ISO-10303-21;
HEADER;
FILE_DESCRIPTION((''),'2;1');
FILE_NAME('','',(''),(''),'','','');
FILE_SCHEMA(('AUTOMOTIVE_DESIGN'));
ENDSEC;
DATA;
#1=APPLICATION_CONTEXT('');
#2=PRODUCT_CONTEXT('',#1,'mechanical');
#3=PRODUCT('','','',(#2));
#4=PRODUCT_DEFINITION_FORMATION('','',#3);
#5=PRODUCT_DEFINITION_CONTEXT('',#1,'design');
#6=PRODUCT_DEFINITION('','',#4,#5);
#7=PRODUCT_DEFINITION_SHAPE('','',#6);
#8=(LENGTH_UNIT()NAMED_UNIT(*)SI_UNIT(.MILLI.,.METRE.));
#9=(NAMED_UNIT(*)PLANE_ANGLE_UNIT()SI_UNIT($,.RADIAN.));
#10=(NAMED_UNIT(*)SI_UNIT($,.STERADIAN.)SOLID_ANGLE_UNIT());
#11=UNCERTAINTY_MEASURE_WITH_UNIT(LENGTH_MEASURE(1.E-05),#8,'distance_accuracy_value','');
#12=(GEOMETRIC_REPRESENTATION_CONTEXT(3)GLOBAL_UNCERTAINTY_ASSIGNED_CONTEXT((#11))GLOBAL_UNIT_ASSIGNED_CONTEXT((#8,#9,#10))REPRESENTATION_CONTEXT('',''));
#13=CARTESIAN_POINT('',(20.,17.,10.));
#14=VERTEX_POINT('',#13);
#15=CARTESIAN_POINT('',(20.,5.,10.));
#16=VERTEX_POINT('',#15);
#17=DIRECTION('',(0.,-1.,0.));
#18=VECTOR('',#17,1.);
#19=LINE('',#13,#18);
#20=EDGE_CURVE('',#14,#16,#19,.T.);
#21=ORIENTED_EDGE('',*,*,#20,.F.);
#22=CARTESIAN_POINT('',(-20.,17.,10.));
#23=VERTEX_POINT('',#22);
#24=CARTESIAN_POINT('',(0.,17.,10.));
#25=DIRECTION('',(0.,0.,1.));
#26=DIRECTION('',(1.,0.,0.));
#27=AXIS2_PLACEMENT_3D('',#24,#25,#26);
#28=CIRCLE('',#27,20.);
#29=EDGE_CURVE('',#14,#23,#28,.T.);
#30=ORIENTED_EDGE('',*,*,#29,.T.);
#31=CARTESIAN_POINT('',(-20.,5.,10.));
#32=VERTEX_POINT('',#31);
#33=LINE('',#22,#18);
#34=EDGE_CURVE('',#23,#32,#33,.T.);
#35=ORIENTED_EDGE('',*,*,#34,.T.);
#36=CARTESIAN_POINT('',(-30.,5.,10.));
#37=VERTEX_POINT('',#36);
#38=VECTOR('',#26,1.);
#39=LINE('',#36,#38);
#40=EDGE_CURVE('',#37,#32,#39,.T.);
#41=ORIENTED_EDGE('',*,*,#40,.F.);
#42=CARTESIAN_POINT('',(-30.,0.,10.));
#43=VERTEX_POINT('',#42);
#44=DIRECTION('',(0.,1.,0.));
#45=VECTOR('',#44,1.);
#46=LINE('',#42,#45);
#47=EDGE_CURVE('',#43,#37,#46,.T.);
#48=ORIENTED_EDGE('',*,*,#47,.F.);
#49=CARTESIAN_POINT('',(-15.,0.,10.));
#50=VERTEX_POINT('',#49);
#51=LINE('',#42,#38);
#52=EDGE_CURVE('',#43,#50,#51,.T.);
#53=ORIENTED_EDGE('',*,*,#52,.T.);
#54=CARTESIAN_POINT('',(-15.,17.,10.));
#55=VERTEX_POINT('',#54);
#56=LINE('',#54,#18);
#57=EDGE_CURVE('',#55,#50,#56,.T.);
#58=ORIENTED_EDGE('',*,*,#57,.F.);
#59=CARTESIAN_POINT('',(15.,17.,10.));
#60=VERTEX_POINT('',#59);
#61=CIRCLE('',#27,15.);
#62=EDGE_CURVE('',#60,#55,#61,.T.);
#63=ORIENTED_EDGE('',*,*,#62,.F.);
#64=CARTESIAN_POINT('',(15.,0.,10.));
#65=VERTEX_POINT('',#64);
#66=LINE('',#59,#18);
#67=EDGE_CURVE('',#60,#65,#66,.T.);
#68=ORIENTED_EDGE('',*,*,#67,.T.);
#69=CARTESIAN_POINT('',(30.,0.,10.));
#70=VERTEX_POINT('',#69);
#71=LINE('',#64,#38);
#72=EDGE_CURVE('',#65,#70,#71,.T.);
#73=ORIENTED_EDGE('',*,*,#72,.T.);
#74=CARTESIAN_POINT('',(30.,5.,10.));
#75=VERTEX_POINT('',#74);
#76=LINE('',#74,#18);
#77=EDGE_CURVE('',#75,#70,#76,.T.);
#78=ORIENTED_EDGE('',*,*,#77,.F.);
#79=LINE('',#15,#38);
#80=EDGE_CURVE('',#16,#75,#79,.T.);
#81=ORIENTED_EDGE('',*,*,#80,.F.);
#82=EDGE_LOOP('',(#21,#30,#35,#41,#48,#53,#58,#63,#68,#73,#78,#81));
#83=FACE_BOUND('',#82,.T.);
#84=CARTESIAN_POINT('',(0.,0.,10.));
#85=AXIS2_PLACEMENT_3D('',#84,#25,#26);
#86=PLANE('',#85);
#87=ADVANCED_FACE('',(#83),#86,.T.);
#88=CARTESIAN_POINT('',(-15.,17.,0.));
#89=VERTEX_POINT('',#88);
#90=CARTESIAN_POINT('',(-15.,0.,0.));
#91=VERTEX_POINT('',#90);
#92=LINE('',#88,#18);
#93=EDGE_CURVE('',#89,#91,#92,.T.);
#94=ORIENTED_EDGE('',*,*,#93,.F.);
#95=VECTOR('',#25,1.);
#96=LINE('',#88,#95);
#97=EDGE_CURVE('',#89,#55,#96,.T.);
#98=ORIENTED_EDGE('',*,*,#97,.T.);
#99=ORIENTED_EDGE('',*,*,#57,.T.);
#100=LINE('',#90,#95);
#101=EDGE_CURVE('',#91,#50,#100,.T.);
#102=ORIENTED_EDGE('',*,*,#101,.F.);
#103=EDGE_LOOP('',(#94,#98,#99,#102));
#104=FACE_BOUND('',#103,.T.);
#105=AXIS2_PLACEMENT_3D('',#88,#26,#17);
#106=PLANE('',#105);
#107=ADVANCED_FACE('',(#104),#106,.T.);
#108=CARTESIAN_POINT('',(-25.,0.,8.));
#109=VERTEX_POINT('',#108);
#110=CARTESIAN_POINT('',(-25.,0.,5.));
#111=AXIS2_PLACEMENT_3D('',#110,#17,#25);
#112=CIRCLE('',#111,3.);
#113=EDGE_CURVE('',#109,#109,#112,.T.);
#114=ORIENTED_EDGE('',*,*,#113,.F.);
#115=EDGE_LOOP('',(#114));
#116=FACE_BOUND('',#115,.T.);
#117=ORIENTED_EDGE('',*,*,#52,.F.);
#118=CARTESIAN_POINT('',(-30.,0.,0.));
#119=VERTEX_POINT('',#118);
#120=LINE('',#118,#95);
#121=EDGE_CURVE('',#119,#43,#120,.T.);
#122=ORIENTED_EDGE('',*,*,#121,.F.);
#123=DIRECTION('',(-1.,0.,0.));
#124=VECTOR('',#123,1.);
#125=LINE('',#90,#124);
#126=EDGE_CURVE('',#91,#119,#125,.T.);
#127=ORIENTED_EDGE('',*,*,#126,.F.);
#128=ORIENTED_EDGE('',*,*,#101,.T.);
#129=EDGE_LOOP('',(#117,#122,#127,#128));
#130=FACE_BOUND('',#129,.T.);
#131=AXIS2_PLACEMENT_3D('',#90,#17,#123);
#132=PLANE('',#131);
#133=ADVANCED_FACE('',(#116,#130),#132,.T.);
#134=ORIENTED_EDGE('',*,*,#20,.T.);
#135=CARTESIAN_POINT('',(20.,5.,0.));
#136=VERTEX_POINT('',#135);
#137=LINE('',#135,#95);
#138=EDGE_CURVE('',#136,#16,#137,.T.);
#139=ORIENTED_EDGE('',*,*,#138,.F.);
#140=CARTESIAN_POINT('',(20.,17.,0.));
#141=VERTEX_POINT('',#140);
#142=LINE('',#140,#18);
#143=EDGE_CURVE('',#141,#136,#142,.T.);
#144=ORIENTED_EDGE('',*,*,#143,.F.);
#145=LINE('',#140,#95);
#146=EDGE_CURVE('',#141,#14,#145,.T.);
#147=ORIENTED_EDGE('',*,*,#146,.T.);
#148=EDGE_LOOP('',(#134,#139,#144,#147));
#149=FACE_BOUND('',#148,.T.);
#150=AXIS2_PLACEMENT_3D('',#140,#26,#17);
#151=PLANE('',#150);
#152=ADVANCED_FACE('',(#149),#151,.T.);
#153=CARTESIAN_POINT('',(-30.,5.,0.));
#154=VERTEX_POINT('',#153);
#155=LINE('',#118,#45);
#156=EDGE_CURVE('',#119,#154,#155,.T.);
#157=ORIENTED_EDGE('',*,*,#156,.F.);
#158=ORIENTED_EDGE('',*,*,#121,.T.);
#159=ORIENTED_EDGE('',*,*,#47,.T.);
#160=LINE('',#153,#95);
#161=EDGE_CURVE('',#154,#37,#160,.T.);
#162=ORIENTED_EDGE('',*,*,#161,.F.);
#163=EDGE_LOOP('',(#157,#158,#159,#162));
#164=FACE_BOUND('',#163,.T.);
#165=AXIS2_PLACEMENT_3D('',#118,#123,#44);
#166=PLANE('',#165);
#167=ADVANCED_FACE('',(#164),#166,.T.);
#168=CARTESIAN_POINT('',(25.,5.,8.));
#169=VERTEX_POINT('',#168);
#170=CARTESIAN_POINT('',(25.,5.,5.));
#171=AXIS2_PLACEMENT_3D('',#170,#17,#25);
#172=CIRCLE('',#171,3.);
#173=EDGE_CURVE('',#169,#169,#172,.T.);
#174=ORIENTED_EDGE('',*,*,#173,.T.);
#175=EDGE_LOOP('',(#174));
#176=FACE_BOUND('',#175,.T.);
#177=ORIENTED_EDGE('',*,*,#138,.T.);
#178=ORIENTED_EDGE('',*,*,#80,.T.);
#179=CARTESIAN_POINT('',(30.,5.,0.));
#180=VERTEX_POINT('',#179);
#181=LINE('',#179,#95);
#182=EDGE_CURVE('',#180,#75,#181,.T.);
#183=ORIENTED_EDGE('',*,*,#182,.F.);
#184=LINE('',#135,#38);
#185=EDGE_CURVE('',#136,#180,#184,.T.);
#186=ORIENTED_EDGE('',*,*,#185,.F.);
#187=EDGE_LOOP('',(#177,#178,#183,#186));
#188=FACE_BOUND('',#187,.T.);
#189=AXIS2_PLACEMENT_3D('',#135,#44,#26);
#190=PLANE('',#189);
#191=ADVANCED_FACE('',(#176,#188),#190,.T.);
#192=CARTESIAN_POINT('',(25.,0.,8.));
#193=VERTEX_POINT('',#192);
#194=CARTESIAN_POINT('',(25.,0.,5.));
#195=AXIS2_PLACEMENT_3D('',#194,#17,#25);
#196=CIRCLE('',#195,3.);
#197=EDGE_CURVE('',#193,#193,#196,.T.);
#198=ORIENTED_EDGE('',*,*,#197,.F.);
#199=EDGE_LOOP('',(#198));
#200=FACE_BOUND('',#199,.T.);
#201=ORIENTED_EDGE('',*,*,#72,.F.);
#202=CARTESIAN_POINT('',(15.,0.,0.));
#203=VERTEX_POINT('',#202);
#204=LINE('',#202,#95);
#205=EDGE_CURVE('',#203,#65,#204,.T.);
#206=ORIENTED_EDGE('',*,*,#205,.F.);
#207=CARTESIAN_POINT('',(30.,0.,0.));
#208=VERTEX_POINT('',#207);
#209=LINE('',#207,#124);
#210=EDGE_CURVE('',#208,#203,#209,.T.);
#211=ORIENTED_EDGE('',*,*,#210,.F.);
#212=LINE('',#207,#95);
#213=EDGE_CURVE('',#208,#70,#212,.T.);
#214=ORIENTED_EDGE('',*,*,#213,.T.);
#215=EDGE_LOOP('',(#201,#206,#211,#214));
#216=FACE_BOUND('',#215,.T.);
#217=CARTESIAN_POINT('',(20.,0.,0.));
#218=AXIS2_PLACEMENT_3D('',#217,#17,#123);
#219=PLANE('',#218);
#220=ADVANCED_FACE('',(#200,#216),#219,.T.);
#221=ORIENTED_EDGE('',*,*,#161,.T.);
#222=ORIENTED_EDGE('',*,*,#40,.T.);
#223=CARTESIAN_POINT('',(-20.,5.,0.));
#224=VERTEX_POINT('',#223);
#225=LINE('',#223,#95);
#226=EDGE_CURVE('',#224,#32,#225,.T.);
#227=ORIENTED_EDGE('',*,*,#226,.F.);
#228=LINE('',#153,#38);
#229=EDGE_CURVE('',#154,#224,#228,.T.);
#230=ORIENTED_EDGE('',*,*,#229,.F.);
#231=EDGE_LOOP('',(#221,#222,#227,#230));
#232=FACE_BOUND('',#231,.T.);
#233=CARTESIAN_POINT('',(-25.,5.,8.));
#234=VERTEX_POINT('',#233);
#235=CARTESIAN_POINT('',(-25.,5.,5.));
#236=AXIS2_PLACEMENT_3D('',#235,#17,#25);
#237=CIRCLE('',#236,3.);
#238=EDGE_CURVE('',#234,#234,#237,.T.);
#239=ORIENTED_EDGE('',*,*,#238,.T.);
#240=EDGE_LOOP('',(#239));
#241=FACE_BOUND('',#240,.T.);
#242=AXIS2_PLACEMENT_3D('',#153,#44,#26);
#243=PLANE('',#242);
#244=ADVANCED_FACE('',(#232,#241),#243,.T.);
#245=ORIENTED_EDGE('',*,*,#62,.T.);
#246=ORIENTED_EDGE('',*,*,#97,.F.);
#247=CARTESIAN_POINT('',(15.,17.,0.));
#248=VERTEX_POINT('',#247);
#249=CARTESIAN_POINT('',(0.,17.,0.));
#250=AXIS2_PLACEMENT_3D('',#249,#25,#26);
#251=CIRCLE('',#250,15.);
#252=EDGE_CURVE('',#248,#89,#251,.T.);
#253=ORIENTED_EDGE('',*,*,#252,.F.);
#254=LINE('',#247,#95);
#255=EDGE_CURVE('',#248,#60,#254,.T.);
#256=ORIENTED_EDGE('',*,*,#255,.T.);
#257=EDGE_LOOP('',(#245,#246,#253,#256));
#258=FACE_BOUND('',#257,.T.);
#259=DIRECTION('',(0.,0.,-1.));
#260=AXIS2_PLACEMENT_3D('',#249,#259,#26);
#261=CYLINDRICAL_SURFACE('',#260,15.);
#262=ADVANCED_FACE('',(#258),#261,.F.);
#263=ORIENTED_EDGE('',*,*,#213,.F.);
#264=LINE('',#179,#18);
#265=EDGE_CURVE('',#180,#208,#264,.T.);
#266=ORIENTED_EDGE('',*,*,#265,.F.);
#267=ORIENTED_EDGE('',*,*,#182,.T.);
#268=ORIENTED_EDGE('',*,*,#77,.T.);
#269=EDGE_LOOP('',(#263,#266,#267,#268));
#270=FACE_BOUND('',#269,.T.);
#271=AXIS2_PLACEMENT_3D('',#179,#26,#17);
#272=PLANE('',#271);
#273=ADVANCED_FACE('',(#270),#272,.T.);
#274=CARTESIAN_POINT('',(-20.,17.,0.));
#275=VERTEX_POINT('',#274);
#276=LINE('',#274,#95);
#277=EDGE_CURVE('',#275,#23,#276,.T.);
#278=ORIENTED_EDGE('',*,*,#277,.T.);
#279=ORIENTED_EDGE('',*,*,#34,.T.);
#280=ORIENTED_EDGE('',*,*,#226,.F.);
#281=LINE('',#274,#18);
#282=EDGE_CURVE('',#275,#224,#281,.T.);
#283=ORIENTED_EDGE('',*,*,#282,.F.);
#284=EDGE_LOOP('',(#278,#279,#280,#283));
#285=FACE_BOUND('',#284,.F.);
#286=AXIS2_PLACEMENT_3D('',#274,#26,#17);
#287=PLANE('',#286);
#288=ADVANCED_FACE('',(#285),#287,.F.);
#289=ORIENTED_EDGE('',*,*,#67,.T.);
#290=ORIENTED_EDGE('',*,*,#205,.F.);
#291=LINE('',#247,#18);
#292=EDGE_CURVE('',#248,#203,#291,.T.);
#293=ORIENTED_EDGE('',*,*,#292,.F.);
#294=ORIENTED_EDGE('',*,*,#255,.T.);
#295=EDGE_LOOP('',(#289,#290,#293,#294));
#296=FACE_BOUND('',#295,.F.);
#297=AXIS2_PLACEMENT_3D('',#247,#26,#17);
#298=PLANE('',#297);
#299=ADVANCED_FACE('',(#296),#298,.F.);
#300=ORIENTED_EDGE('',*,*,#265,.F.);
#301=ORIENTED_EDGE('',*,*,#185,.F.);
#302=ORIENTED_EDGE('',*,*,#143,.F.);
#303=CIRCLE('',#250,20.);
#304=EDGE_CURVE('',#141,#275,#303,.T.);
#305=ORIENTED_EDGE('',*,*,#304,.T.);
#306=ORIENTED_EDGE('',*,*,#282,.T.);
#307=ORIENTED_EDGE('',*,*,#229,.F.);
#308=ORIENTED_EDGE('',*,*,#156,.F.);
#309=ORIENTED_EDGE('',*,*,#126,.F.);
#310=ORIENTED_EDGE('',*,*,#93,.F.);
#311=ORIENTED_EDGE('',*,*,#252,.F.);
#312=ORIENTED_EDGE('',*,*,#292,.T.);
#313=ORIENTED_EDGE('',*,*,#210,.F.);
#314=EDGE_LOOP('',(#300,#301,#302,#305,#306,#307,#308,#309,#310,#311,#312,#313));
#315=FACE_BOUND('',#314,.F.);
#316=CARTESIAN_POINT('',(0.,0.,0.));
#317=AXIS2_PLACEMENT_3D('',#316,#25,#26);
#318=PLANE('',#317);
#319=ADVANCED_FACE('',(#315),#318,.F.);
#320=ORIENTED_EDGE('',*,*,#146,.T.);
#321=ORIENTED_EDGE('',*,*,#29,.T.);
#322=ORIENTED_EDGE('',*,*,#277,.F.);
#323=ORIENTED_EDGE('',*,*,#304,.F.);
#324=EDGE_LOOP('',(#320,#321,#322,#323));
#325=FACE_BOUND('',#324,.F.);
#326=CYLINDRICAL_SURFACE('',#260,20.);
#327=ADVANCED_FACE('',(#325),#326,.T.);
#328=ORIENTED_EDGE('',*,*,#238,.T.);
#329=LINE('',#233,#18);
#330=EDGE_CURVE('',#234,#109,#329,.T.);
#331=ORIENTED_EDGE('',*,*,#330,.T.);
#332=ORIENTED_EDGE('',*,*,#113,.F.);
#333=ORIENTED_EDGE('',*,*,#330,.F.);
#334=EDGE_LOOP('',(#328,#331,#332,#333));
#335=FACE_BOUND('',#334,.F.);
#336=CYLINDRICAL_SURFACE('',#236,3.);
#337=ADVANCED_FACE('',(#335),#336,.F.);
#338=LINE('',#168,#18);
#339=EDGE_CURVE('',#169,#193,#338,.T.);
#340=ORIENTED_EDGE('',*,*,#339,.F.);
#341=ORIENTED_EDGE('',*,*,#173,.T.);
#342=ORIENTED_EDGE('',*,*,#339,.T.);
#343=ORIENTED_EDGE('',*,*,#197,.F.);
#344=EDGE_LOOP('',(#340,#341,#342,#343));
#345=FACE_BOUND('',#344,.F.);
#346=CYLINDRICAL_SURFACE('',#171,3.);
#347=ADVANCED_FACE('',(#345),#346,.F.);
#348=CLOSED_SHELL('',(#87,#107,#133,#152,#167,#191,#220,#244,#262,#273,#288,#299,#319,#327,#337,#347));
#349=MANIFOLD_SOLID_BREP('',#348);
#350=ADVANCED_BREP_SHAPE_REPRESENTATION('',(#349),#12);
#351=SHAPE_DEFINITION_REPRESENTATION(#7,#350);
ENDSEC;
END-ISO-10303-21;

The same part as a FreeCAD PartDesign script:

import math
import FreeCAD as App
import Part
import Sketcher

doc = App.newDocument("Part")
params = doc.addObject("Spreadsheet::Sheet", "Params")
for row, (alias, value) in enumerate([
    ("sketch1_radius", "15 mm"),
    ("sketch1_radius2", "20 mm"),
    ("sketch1_height", "17 mm"),
    ("sketch1_height2", "5 mm"),
    ("pad1_length", "10 mm"),
    ("sketch2_diameter", "6 mm"),
    ("hole_diameter", "6 mm"),
    ("sketch3_diameter", "6 mm"),
    ("hole2_diameter", "6 mm"),
], start=1):
    params.set(f"A{row}", alias)
    params.set(f"B{row}", "=" + value)
    params.setAlias(f"B{row}", alias)

body = doc.addObject("PartDesign::Body", "Body")

sketch1 = body.newObject("Sketcher::SketchObject", "Sketch")
sketch1.AttachmentSupport = (doc.getObject("XY_Plane"), [""])
sketch1.MapMode = "FlatFace"
sketch1.addGeometry([
    Part.ArcOfCircle(Part.Circle(App.Vector(0, 17, 0), App.Vector(0, 0, 1), 15), math.radians(0), math.radians(180)),
    Part.LineSegment(App.Vector(15, 17, 0), App.Vector(15, 0, 0)),
    Part.LineSegment(App.Vector(15, 0, 0), App.Vector(30, 0, 0)),
    Part.LineSegment(App.Vector(30, 0, 0), App.Vector(30, 5, 0)),
    Part.LineSegment(App.Vector(30, 5, 0), App.Vector(20, 5, 0)),
    Part.LineSegment(App.Vector(20, 5, 0), App.Vector(20, 17, 0)),
    Part.ArcOfCircle(Part.Circle(App.Vector(0, 17, 0), App.Vector(0, 0, 1), 20), math.radians(0), math.radians(180)),
    Part.LineSegment(App.Vector(-20, 17, 0), App.Vector(-20, 5, 0)),
    Part.LineSegment(App.Vector(-20, 5, 0), App.Vector(-30, 5, 0)),
    Part.LineSegment(App.Vector(-30, 5, 0), App.Vector(-30, 0, 0)),
    Part.LineSegment(App.Vector(-30, 0, 0), App.Vector(-15, 0, 0)),
    Part.LineSegment(App.Vector(-15, 0, 0), App.Vector(-15, 17, 0)),
], False)
sketch1.addConstraint([
    Sketcher.Constraint("Tangent", 0, 1, 1, 1),
    Sketcher.Constraint("Coincident", 1, 2, 2, 1),
    Sketcher.Constraint("Coincident", 2, 2, 3, 1),
    Sketcher.Constraint("Coincident", 3, 2, 4, 1),
    Sketcher.Constraint("Coincident", 4, 2, 5, 1),
    Sketcher.Constraint("Tangent", 5, 2, 6, 1),
    Sketcher.Constraint("Tangent", 6, 2, 7, 1),
    Sketcher.Constraint("Coincident", 7, 2, 8, 1),
    Sketcher.Constraint("Coincident", 8, 2, 9, 1),
    Sketcher.Constraint("Coincident", 9, 2, 10, 1),
    Sketcher.Constraint("Coincident", 10, 2, 11, 1),
    Sketcher.Constraint("Tangent", 11, 2, 0, 2),
    Sketcher.Constraint("Vertical", 1),
    Sketcher.Constraint("Horizontal", 2),
    Sketcher.Constraint("Vertical", 3),
    Sketcher.Constraint("Horizontal", 4),
    Sketcher.Constraint("Vertical", 5),
    Sketcher.Constraint("Vertical", 7),
    Sketcher.Constraint("Horizontal", 8),
    Sketcher.Constraint("Vertical", 9),
    Sketcher.Constraint("Horizontal", 10),
    Sketcher.Constraint("Vertical", 11),
    Sketcher.Constraint("Coincident", 6, 3, 0, 3),
    Sketcher.Constraint("Symmetric", 2, 2, 9, 2, -1, 1),
    Sketcher.Constraint("Symmetric", 4, 2, 7, 2, -2),
    Sketcher.Constraint("PointOnObject", 1, 2, -1),
    Sketcher.Constraint("Radius", 0, 15.0),
    Sketcher.Constraint("Radius", 6, 20.0),
    Sketcher.Constraint("DistanceY", 1, 2, 1, 1, 17.0),
    Sketcher.Constraint("DistanceY", 3, 1, 3, 2, 5.0),
    Sketcher.Constraint("DistanceX", -1, 1, 2, 2, 30.0),
])
sketch1.setExpression("Constraints[26]", "Params.sketch1_radius")
sketch1.setExpression("Constraints[27]", "Params.sketch1_radius2")
sketch1.setExpression("Constraints[28]", "Params.sketch1_height")
sketch1.setExpression("Constraints[29]", "Params.sketch1_height2")
pad1 = body.newObject("PartDesign::Pad", "Pad")
pad1.Profile = sketch1
pad1.setExpression("Length", "Params.pad1_length")

sketch2 = body.newObject("Sketcher::SketchObject", "Sketch001")
sketch2.AttachmentSupport = (doc.getObject("XZ_Plane"), [""])
sketch2.MapMode = "FlatFace"
sketch2.AttachmentOffset = App.Placement(App.Vector(0, 0, -5), App.Rotation())
sketch2.addGeometry(Part.Circle(App.Vector(25, 5, 0), App.Vector(0, 0, 1), 3), False)
sketch2.addConstraint([
    Sketcher.Constraint("Diameter", 0, 6.0),
    Sketcher.Constraint("DistanceX", -1, 1, 0, 3, 25.0),
    Sketcher.Constraint("DistanceY", -1, 1, 0, 3, 5.0),
])
sketch2.setExpression("Constraints[0]", "Params.sketch2_diameter")
doc.recompute()
hole = body.newObject("PartDesign::Hole", "Hole")
hole.Profile = sketch2
hole.ThreadType = "None"
hole.setExpression("Diameter", "Params.hole_diameter")
hole.DepthType = "ThroughAll"
hole.Reversed = True

sketch3 = body.newObject("Sketcher::SketchObject", "Sketch002")
sketch3.AttachmentSupport = (doc.getObject("XZ_Plane"), [""])
sketch3.MapMode = "FlatFace"
sketch3.AttachmentOffset = App.Placement(App.Vector(0, 0, -5), App.Rotation())
sketch3.addGeometry(Part.Circle(App.Vector(-25, 5, 0), App.Vector(0, 0, 1), 3), False)
sketch3.addConstraint([
    Sketcher.Constraint("Diameter", 0, 6.0),
    Sketcher.Constraint("DistanceX", 0, 3, -1, 1, 25.0),
    Sketcher.Constraint("DistanceY", -1, 1, 0, 3, 5.0),
])
sketch3.setExpression("Constraints[0]", "Params.sketch3_diameter")
doc.recompute()
hole2 = body.newObject("PartDesign::Hole", "Hole001")
hole2.Profile = sketch3
hole2.ThreadType = "None"
hole2.setExpression("Diameter", "Params.hole2_diameter")
hole2.DepthType = "ThroughAll"
hole2.Reversed = True

doc.recompute()
